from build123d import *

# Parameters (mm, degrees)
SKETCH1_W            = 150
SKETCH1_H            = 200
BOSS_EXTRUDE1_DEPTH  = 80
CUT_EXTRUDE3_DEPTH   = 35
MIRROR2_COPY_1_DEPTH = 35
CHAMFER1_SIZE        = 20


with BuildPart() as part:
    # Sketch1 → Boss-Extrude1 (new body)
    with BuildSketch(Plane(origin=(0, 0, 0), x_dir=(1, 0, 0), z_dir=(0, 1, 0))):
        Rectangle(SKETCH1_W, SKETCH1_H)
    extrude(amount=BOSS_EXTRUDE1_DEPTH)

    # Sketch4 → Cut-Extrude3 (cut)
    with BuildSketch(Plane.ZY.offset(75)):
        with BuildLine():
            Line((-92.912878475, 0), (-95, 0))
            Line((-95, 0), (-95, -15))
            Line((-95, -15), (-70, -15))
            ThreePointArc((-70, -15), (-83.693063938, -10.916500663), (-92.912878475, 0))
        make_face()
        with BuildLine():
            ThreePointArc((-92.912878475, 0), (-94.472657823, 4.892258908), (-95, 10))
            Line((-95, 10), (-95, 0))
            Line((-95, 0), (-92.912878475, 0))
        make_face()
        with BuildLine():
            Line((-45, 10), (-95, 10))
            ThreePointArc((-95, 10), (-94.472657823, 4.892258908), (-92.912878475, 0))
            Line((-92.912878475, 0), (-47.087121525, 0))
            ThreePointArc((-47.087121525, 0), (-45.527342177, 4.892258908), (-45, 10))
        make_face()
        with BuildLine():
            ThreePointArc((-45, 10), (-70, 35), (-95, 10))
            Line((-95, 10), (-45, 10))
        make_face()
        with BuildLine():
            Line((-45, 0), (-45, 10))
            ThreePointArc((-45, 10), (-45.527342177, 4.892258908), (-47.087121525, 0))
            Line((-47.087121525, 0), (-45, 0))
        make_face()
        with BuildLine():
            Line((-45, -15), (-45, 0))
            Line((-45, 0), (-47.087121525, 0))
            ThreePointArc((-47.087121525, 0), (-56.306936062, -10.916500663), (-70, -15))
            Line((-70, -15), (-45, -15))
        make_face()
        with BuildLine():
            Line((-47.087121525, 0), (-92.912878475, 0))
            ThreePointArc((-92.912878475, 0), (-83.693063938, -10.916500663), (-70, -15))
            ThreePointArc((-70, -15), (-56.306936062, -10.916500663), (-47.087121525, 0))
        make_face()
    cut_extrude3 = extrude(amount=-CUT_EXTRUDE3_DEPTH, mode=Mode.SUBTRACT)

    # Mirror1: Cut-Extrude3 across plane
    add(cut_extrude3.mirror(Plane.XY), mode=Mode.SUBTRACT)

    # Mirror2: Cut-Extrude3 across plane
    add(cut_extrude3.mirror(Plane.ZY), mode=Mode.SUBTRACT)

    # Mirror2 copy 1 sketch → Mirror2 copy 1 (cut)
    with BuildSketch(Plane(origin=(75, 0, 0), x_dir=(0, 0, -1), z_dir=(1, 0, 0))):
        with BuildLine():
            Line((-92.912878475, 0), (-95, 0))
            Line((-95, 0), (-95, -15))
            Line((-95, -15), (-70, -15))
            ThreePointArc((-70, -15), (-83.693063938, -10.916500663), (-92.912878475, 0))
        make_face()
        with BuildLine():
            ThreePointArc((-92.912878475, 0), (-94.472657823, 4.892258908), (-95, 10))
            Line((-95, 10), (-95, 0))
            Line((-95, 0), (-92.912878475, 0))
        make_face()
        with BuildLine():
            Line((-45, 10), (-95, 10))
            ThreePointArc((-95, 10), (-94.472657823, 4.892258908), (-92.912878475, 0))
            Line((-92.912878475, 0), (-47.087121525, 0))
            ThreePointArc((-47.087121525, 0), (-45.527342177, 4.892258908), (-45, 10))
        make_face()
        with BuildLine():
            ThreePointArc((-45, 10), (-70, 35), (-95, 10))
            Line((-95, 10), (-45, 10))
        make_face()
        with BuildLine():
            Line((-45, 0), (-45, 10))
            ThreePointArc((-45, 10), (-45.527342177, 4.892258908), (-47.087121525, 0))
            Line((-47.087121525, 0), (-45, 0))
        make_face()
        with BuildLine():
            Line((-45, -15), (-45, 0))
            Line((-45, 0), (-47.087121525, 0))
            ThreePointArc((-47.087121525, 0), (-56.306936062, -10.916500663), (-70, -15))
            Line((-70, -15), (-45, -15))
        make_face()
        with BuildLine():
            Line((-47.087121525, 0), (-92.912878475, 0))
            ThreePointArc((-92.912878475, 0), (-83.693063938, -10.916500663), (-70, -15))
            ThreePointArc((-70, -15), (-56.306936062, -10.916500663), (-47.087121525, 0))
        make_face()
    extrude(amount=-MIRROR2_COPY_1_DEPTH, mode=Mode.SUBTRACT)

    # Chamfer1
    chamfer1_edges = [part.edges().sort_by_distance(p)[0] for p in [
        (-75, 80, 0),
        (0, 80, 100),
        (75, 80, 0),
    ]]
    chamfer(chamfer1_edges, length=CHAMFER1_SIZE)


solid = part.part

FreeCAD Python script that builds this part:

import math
import FreeCAD as App
import Part
import Sketcher

V = App.Vector
Q = App.Units.Quantity


def edges_at(feature, points):
    """Names of the edges that pass closest to the given points."""
    edges = feature.Shape.Edges
    near = lambda p: min(range(len(edges)), key=lambda i: edges[i].distToShape(Part.Vertex(*p))[0])
    return sorted({f"Edge{near(p) + 1}" for p in points})

doc = App.newDocument("Part")
body = doc.addObject("PartDesign::Body", "Body")

sketch1 = doc.addObject("Sketcher::SketchObject", "Sketch")
body.addObject(sketch1)
sketch1.AttachmentSupport = (doc.XZ_Plane, [""])
sketch1.MapMode = "FlatFace"
sketch1.addGeometry([
    Part.LineSegment(V(-75, -100, 0), V(-75, 100, 0)),
    Part.LineSegment(V(-75, 100, 0), V(75, 100, 0)),
    Part.LineSegment(V(75, 100, 0), V(75, -100, 0)),
    Part.LineSegment(V(75, -100, 0), V(-75, -100, 0)),
], False)
sketch1.addConstraint([
    Sketcher.Constraint("Coincident", 0, 2, 1, 1),
    Sketcher.Constraint("Coincident", 1, 2, 2, 1),
    Sketcher.Constraint("Coincident", 2, 2, 3, 1),
    Sketcher.Constraint("Coincident", 3, 2, 0, 1),
    Sketcher.Constraint("Vertical", 0),
    Sketcher.Constraint("Horizontal", 1),
    Sketcher.Constraint("Vertical", 2),
    Sketcher.Constraint("Horizontal", 3),
    Sketcher.Constraint("Symmetric", 0, 2, 2, 2, -1, 1),
    Sketcher.Constraint("DistanceX", 1, 1, 1, 2, Q("150 mm")),
    Sketcher.Constraint("DistanceY", 0, 1, 0, 2, Q("200 mm")),
])
pad1 = doc.addObject("PartDesign::Pad", "Pad")
body.addObject(pad1)
pad1.Profile = sketch1
pad1.Length = 80
pad1.Reversed = True

sketch2 = doc.addObject("Sketcher::SketchObject", "Sketch001")
body.addObject(sketch2)
sketch2.AttachmentSupport = (doc.YZ_Plane, [""])
sketch2.MapMode = "FlatFace"
sketch2.AttachmentOffset = App.Placement(V(0, 0, -75), App.Rotation())
sketch2.addGeometry([
    Part.LineSegment(V(-15, -95, 0), V(-15, -45, 0)),
    Part.LineSegment(V(-15, -45, 0), V(10, -45, 0)),
    Part.ArcOfCircle(Part.Circle(V(10, -70, 0), V(0, 0, 1), 25), math.radians(-90), math.radians(90)),
    Part.LineSegment(V(10, -95, 0), V(-15, -95, 0)),
], False)
sketch2.addConstraint([
    Sketcher.Constraint("Coincident", 0, 2, 1, 1),
    Sketcher.Constraint("Tangent", 1, 2, 2, 2),
    Sketcher.Constraint("Tangent", 2, 1, 3, 1),
    Sketcher.Constraint("Coincident", 3, 2, 0, 1),
    Sketcher.Constraint("Vertical", 0),
    Sketcher.Constraint("Horizontal", 1),
    Sketcher.Constraint("Horizontal", 3),
    Sketcher.Constraint("Radius", 2, Q("25 mm")),
    Sketcher.Constraint("DistanceX", 1, 1, 1, 2, Q("25 mm")),
    Sketcher.Constraint("DistanceX", -1, 1, 2, 3, Q("10 mm")),
    Sketcher.Constraint("DistanceY", 2, 3, -1, 1, Q("70 mm")),
])
pocket1 = doc.addObject("PartDesign::Pocket", "Pocket")
body.addObject(pocket1)
pocket1.Profile = sketch2
pocket1.Length = 35
pocket1.Reversed = True
doc.recompute()

mirrored = doc.addObject("PartDesign::Mirrored", "Mirrored")
body.addObject(mirrored)
mirrored.Originals = [pocket1]
mirrored.MirrorPlane = (doc.XY_Plane, [""])
body.Tip = mirrored
doc.recompute()

mirrored2 = doc.addObject("PartDesign::Mirrored", "Mirrored001")
body.addObject(mirrored2)
mirrored2.Originals = [pocket1]
mirrored2.MirrorPlane = (doc.YZ_Plane, [""])
body.Tip = mirrored2

sketch3 = doc.addObject("Sketcher::SketchObject", "Sketch002")
body.addObject(sketch3)
sketch3.AttachmentSupport = (doc.YZ_Plane, [""])
sketch3.MapMode = "FlatFace"
sketch3.AttachmentOffset = App.Placement(V(0, 0, 75), App.Rotation())
sketch3.addGeometry([
    Part.LineSegment(V(-15, 95, 0), V(-15, 45, 0)),
    Part.LineSegment(V(-15, 45, 0), V(10, 45, 0)),
    Part.ArcOfCircle(Part.Circle(V(10, 70, 0), V(0, 0, 1), 25), math.radians(-90), math.radians(90)),
    Part.LineSegment(V(10, 95, 0), V(-15, 95, 0)),
], False)
sketch3.addConstraint([
    Sketcher.Constraint("Coincident", 0, 2, 1, 1),
    Sketcher.Constraint("Tangent", 1, 2, 2, 1),
    Sketcher.Constraint("Tangent", 2, 2, 3, 1),
    Sketcher.Constraint("Coincident", 3, 2, 0, 1),
    Sketcher.Constraint("Vertical", 0),
    Sketcher.Constraint("Horizontal", 1),
    Sketcher.Constraint("Horizontal", 3),
    Sketcher.Constraint("Radius", 2, Q("25 mm")),
    Sketcher.Constraint("DistanceX", 1, 1, 1, 2, Q("25 mm")),
    Sketcher.Constraint("DistanceX", -1, 1, 2, 3, Q("10 mm")),
    Sketcher.Constraint("DistanceY", -1, 1, 2, 3, Q("70 mm")),
])
pocket2 = doc.addObject("PartDesign::Pocket", "Pocket001")
body.addObject(pocket2)
pocket2.Profile = sketch3
pocket2.Length = 35
doc.recompute()

chamfer = doc.addObject("PartDesign::Chamfer", "Chamfer")
body.addObject(chamfer)
chamfer.Base = (pocket2, edges_at(pocket2, [(-75, 80, 0), (0, 80, 100), (75, 80, 0)]))
chamfer.Size = 20

doc.recompute()
